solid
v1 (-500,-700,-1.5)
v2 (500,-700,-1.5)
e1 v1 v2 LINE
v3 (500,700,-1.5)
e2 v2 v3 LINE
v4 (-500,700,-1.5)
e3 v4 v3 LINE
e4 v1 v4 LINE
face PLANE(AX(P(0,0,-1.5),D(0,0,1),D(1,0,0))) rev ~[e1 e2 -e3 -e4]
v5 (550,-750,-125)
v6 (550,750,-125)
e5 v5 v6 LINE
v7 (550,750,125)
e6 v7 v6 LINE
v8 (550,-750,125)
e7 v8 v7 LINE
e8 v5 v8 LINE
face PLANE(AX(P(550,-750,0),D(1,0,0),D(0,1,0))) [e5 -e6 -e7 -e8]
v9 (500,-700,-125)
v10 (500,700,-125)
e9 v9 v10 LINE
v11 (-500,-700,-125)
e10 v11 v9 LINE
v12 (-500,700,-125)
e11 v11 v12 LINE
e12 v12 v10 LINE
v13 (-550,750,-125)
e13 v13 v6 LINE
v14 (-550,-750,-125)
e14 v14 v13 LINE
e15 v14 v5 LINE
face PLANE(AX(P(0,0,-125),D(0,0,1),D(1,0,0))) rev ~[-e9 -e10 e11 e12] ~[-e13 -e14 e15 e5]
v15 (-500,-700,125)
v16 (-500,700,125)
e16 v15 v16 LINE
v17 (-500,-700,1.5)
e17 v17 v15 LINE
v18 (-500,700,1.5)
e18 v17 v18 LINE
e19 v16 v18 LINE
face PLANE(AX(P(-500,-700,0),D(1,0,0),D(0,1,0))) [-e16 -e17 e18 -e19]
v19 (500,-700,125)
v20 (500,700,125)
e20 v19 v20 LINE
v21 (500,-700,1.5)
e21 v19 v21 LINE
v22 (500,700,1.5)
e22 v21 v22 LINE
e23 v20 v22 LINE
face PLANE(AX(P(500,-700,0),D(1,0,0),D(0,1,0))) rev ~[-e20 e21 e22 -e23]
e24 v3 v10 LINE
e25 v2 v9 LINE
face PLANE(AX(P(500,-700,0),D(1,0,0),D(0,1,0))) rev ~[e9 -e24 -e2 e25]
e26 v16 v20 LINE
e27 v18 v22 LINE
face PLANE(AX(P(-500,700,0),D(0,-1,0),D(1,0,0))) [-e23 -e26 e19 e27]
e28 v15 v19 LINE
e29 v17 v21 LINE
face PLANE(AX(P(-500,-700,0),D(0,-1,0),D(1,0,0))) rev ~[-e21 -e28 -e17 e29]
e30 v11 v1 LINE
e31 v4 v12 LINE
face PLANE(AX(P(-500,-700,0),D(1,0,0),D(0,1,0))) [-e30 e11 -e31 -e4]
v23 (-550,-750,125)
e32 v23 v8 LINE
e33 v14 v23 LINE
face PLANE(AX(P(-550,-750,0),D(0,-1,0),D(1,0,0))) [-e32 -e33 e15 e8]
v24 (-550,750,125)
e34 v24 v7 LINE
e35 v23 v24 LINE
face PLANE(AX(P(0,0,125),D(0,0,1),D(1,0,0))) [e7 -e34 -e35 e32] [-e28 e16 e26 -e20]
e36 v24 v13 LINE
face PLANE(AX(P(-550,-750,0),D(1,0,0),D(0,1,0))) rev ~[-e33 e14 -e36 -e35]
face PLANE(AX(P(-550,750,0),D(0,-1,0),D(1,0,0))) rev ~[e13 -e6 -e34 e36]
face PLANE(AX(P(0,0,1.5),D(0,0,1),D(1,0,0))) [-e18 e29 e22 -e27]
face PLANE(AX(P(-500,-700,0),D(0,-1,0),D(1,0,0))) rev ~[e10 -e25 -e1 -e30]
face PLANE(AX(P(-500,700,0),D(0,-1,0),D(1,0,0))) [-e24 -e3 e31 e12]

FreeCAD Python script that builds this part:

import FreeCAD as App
import Part
import Sketcher
from FreeCAD import Vector
Q = App.Units.Quantity


def add_polygon(sketch, points):
    """Adds a closed chain of lines whose ends are joined by coincident constraints."""
    first, n = sketch.GeometryCount, len(points)
    for a, b in zip(points, points[1:] + points[:1]):
        sketch.addGeometry(Part.LineSegment(App.Vector(*a, 0), App.Vector(*b, 0)), False)
    for i in range(n):
        sketch.addConstraint(Sketcher.Constraint("Coincident", first + i, 2, first + (i + 1) % n, 1))

doc = App.newDocument("Part")
body = doc.addObject("PartDesign::Body", "Body")

# Sketch on XY plane
sketch1 = body.newObject("Sketcher::SketchObject", "Sketch")
sketch1.AttachmentSupport = (doc.getObject("XY_Plane"), [""])
sketch1.MapMode = "FlatFace"
add_polygon(sketch1, [(-550, 750), (-550, -750), (550, -750), (550, 750)])  # lines 0-3
add_polygon(sketch1, [(500, -700), (-500, -700), (-500, 700), (500, 700)])  # lines 4-7
sketch1.addConstraint([
    Sketcher.Constraint("Vertical", 0),
    Sketcher.Constraint("Horizontal", 1),
    Sketcher.Constraint("Vertical", 2),
    Sketcher.Constraint("Horizontal", 3),
    Sketcher.Constraint("Horizontal", 4),
    Sketcher.Constraint("Vertical", 5),
    Sketcher.Constraint("Horizontal", 6),
    Sketcher.Constraint("Vertical", 7),
    Sketcher.Constraint("Symmetric", 0, 2, 2, 2, -1, 1),
    Sketcher.Constraint("Symmetric", 4, 2, 6, 2, -1, 1),
    Sketcher.Constraint("DistanceX", 1, 1, 1, 2, Q("1100 mm")),
    Sketcher.Constraint("DistanceX", 4, 2, 4, 1, Q("1000 mm")),
    Sketcher.Constraint("DistanceY", 0, 2, 0, 1, Q("1500 mm")),
    Sketcher.Constraint("DistanceY", 5, 1, 5, 2, Q("1400 mm")),
])
pad1 = body.newObject("PartDesign::Pad", "Pad")
pad1.Profile = sketch1
pad1.Length = 250
pad1.Midplane = True

# Sketch on XY plane
sketch2 = body.newObject("Sketcher::SketchObject", "Sketch001")
sketch2.AttachmentSupport = (doc.getObject("XY_Plane"), [""])
sketch2.MapMode = "FlatFace"
add_polygon(sketch2, [(-500, 700), (-500, -700), (500, -700), (500, 700)])  # lines 0-3
sketch2.addConstraint([
    Sketcher.Constraint("Vertical", 0),
    Sketcher.Constraint("Horizontal", 1),
    Sketcher.Constraint("Vertical", 2),
    Sketcher.Constraint("Horizontal", 3),
    Sketcher.Constraint("Symmetric", 0, 2, 2, 2, -1, 1),
    Sketcher.Constraint("DistanceX", 1, 1, 1, 2, Q("1000 mm")),
    Sketcher.Constraint("DistanceY", 0, 2, 0, 1, Q("1400 mm")),
])
pad2 = body.newObject("PartDesign::Pad", "Pad001")
pad2.Profile = sketch2
pad2.Length = 3
pad2.Midplane = True

doc.recompute()
